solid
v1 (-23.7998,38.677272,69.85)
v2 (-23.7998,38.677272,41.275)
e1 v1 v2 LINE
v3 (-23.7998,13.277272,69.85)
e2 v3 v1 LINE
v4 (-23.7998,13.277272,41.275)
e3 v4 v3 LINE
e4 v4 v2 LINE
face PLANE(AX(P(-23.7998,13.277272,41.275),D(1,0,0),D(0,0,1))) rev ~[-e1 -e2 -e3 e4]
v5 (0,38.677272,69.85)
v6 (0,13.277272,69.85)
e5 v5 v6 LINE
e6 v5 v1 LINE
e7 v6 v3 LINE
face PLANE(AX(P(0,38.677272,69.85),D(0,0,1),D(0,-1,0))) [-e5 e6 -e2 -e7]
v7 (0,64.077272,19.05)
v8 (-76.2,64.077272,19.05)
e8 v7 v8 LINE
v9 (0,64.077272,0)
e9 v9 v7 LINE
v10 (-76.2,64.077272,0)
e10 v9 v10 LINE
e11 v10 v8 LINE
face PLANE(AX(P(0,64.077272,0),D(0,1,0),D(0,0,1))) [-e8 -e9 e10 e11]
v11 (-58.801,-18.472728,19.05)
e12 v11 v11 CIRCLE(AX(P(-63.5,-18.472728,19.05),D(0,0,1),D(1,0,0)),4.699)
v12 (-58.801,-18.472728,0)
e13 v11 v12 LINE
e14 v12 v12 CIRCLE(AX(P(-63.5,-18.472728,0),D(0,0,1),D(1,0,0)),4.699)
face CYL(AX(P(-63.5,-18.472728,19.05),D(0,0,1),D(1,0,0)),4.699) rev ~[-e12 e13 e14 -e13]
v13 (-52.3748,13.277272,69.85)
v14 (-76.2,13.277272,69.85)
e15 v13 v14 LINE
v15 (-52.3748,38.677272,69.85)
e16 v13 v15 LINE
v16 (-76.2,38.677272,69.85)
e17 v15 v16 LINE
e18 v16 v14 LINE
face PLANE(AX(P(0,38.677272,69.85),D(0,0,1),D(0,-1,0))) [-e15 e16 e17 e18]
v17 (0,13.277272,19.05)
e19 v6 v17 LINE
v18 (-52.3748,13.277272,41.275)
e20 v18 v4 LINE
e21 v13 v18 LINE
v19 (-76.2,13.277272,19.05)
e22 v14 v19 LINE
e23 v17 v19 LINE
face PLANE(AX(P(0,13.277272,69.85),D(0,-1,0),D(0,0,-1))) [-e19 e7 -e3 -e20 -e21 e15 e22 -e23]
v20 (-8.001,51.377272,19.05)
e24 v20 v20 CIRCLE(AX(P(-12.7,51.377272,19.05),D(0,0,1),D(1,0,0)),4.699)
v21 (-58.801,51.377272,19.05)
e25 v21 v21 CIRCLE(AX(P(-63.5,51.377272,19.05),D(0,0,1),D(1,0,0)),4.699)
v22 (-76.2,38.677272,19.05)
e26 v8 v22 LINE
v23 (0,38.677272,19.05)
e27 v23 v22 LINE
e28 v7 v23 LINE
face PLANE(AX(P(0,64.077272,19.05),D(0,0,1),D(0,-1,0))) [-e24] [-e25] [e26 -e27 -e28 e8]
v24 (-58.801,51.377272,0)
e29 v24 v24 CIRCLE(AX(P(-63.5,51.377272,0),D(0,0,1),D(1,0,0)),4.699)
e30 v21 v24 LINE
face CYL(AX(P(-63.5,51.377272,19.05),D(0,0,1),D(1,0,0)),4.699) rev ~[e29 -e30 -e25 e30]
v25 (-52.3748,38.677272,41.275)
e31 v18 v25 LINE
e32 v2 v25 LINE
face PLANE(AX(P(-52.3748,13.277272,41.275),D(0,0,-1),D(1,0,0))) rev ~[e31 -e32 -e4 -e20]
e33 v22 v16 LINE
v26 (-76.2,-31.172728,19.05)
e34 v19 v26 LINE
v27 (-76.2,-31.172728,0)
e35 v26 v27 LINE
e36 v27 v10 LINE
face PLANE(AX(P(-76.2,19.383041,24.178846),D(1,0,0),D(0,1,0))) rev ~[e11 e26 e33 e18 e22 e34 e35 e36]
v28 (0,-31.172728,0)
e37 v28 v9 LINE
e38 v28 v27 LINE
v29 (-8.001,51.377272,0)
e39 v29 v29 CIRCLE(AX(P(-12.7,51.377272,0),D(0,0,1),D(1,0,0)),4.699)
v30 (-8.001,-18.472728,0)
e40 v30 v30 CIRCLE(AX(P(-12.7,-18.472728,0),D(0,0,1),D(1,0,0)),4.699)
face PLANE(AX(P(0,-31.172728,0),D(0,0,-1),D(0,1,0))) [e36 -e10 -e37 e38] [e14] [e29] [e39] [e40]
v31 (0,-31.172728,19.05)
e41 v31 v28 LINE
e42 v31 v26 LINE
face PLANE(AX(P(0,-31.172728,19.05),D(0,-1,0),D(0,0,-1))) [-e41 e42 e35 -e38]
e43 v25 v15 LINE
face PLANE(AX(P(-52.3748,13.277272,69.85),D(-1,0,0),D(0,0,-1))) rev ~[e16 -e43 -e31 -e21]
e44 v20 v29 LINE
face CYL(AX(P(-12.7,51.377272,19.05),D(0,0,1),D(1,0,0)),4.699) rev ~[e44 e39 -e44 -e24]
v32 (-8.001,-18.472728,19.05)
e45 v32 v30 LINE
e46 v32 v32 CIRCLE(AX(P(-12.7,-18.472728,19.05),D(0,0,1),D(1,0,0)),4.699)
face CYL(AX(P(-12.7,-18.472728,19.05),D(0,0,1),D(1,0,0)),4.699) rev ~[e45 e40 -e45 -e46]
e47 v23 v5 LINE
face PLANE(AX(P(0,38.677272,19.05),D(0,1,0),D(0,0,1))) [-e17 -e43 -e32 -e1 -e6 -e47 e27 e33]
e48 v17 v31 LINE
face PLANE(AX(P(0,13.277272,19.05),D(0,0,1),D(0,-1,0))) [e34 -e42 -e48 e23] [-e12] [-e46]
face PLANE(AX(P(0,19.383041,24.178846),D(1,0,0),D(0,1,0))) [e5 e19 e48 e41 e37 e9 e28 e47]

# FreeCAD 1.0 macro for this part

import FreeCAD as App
import Part
import Sketcher

V = App.Vector
Q = App.Units.Quantity


def add_polygon(sketch, points):
    """Adds a closed chain of lines whose ends are joined by coincident constraints."""
    first, n = sketch.GeometryCount, len(points)
    for a, b in zip(points, points[1:] + points[:1]):
        sketch.addGeometry(Part.LineSegment(App.Vector(*a, 0), App.Vector(*b, 0)), False)
    for i in range(n):
        sketch.addConstraint(Sketcher.Constraint("Coincident", first + i, 2, first + (i + 1) % n, 1))

doc = App.newDocument("Part")
body = doc.addObject("PartDesign::Body", "Body")

sketch1 = body.newObject("Sketcher::SketchObject", "Sketch")
sketch1.AttachmentSupport = (doc.getObject("YZ_Plane"), [""])
sketch1.MapMode = "FlatFace"
add_polygon(sketch1, [(-31, 19), (-31, 0), (64, 0), (64, 19), (39, 19), (39, 70), (13, 70), (13, 19)])
sketch1.addConstraint([
    Sketcher.Constraint("Vertical", 0),
    Sketcher.Constraint("Horizontal", 1),
    Sketcher.Constraint("Vertical", 2),
    Sketcher.Constraint("Horizontal", 3),
    Sketcher.Constraint("Vertical", 4),
    Sketcher.Constraint("Horizontal", 5),
    Sketcher.Constraint("Vertical", 6),
    Sketcher.Constraint("Horizontal", 7),
    Sketcher.Constraint("PointOnObject", 0, 2, -1),
    Sketcher.Constraint("Horizontal", 3, 2, 6, 2),
    Sketcher.Constraint("Equal", 3, 5),
    Sketcher.Constraint("DistanceX", 3, 2, 3, 1, Q("1 in")),
    Sketcher.Constraint("DistanceY", 4, 1, 4, 2, Q("2 in")),
    Sketcher.Constraint("DistanceX", 1, 1, 1, 2, Q("3.75 in")),
    Sketcher.Constraint("DistanceY", 0, 2, 0, 1, Q("0.75 in")),
    Sketcher.Constraint("DistanceX", -1, 1, 1, 2, 64.077272),
])
pad1 = body.newObject("PartDesign::Pad", "Pad")
pad1.Profile = sketch1
pad1.Length = Q("3 in")
pad1.Reversed = True

sketch2 = body.newObject("Sketcher::SketchObject", "Sketch001")
sketch2.AttachmentSupport = (doc.getObject("XZ_Plane"), [""])
sketch2.MapMode = "FlatFace"
sketch2.AttachmentOffset = App.Placement(V(0, 0, -13.277272), App.Rotation())
add_polygon(sketch2, [(-24, 70), (-52, 70), (-52, 41), (-24, 41)])
sketch2.addConstraint([
    Sketcher.Constraint("Horizontal", 0),
    Sketcher.Constraint("Vertical", 1),
    Sketcher.Constraint("Horizontal", 2),
    Sketcher.Constraint("Vertical", 3),
    Sketcher.Constraint("Equal", 2, 1),
    Sketcher.Constraint("DistanceX", 0, 2, 0, 1, Q("1.125 in")),
    Sketcher.Constraint("DistanceY", -1, 1, 0, 2, Q("2.75 in")),
    Sketcher.Constraint("DistanceX", 0, 2, -1, 1, Q("2.062 in")),
])
pocket1 = body.newObject("PartDesign::Pocket", "Pocket")
pocket1.Profile = sketch2
pocket1.Type = "ThroughAll"

sketch3 = body.newObject("Sketcher::SketchObject", "Sketch002")
sketch3.AttachmentSupport = (doc.getObject("XY_Plane"), [""])
sketch3.MapMode = "FlatFace"
sketch3.AttachmentOffset = App.Placement(V(0, 0, 0.75 * 25.4), App.Rotation())
sketch3.addGeometry([
    Part.Circle(V(-63.5, 51.4, 0), V(0, 0, 1), 4.7),
    Part.Circle(V(-12.7, 51.4, 0), V(0, 0, 1), 4.7),
], False)
sketch3.addConstraint([
    Sketcher.Constraint("Equal", 0, 1),
    Sketcher.Constraint("Horizontal", 0, 3, 1, 3),
    Sketcher.Constraint("Diameter", 0, Q("0.37 in")),
    Sketcher.Constraint("DistanceX", 0, 3, 1, 3, Q("2 in")),
    Sketcher.Constraint("DistanceX", 0, 3, -1, 1, Q("2.5 in")),
    Sketcher.Constraint("DistanceY", -1, 1, 0, 3, 51.377272),
])
pocket2 = body.newObject("PartDesign::Pocket", "Pocket001")
pocket2.Profile = sketch3
pocket2.Type = "ThroughAll"

sketch4 = body.newObject("Sketcher::SketchObject", "Sketch003")
sketch4.AttachmentSupport = (doc.getObject("XY_Plane"), [""])
sketch4.MapMode = "FlatFace"
sketch4.AttachmentOffset = App.Placement(V(0, 0, 0.75 * 25.4), App.Rotation())
sketch4.addGeometry([
    Part.Circle(V(-63.5, -18.5, 0), V(0, 0, 1), 4.7),
    Part.Circle(V(-12.7, -18.5, 0), V(0, 0, 1), 4.7),
], False)
sketch4.addConstraint([
    Sketcher.Constraint("Equal", 0, 1),
    Sketcher.Constraint("Horizontal", 0, 3, 1, 3),
    Sketcher.Constraint("Diameter", 0, Q("0.37 in")),
    Sketcher.Constraint("DistanceX", 0, 3, 1, 3, Q("2 in")),
    Sketcher.Constraint("DistanceX", 0, 3, -1, 1, Q("2.5 in")),
    Sketcher.Constraint("DistanceY", 0, 3, -1, 1, 18.472728),
])
pocket3 = body.newObject("PartDesign::Pocket", "Pocket002")
pocket3.Profile = sketch4
pocket3.Type = "ThroughAll"

doc.recompute()
